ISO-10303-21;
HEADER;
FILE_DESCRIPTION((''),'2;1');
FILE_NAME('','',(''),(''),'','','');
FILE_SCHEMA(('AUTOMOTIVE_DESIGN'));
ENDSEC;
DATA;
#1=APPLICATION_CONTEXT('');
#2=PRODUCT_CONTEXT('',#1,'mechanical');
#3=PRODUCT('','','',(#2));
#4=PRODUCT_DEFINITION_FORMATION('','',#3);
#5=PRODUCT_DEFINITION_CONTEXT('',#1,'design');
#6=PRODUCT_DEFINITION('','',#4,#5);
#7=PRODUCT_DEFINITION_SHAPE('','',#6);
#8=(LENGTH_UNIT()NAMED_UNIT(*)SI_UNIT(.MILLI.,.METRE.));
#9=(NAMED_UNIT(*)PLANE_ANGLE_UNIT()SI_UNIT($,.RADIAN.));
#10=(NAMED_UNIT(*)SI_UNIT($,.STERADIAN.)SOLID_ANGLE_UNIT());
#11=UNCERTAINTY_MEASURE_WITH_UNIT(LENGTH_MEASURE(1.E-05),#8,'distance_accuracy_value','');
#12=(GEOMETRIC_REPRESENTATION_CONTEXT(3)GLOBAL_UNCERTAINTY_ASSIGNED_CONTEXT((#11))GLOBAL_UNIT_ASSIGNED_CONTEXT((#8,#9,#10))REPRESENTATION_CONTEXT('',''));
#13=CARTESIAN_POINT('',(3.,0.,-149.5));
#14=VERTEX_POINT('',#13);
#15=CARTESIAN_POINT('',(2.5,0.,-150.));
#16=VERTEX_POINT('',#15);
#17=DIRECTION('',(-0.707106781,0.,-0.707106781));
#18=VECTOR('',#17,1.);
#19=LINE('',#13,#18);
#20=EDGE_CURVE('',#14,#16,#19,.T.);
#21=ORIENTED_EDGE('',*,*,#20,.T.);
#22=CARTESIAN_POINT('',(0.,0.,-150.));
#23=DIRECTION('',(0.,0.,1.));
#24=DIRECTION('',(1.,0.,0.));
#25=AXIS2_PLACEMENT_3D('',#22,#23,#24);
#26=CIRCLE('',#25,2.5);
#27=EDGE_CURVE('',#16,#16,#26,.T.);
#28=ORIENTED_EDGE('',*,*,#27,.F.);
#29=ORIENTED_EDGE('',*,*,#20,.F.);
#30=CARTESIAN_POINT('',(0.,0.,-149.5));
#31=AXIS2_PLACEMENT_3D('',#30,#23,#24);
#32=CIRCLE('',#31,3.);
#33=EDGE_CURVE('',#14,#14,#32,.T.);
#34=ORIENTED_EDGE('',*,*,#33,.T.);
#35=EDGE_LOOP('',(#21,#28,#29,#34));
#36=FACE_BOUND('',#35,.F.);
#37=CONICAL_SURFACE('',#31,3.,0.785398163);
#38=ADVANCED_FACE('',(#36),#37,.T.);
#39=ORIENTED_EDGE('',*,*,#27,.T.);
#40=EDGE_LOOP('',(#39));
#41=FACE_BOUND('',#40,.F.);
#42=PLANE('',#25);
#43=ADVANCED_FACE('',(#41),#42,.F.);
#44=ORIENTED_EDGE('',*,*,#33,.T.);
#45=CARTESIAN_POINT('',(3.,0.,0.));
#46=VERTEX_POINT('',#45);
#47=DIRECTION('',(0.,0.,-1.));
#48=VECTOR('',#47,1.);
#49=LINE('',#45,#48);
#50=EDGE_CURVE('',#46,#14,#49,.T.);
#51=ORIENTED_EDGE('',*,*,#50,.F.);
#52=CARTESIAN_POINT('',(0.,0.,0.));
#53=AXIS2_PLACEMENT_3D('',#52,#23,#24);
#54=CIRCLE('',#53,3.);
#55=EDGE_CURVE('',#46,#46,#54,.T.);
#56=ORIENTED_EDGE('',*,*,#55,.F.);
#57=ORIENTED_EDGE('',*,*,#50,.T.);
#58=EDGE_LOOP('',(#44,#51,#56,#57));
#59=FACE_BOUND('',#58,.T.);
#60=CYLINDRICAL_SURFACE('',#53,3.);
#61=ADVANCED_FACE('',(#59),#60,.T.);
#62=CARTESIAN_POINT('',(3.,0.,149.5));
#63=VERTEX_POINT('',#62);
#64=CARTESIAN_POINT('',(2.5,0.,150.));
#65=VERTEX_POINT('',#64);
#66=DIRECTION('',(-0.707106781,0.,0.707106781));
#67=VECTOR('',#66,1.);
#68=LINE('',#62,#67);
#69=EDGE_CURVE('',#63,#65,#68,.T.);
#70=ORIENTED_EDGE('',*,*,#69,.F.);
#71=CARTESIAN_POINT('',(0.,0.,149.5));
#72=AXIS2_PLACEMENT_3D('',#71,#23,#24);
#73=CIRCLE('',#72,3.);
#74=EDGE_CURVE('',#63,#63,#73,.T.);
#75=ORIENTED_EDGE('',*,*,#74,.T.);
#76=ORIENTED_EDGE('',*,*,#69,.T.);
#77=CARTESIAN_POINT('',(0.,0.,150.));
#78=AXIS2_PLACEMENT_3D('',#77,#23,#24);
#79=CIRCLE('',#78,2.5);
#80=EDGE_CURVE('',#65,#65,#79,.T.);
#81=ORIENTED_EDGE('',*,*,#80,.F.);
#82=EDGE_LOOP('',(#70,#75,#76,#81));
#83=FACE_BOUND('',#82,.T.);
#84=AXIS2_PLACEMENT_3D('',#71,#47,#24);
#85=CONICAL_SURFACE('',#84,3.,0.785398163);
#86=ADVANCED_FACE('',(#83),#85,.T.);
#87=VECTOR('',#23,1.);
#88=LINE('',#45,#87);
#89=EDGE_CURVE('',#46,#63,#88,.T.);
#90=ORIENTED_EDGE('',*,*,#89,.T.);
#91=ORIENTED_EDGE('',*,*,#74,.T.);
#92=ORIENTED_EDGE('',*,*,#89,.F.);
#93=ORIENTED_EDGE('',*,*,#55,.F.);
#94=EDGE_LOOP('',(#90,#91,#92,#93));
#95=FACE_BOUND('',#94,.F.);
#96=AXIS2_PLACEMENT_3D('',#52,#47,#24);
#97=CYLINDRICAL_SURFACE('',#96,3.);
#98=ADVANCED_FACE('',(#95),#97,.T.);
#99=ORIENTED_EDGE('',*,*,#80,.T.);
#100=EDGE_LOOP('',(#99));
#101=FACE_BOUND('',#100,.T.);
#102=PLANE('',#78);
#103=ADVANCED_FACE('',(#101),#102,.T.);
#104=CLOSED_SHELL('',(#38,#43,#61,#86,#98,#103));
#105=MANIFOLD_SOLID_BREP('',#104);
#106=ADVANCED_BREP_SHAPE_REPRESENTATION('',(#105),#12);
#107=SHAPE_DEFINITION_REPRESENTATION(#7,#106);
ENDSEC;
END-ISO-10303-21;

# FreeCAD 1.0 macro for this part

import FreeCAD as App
import Part
import Sketcher


def edges_at(feature, points):
    """Names of the edges that pass closest to the given points."""
    edges = feature.Shape.Edges
    near = lambda p: min(range(len(edges)), key=lambda i: edges[i].distToShape(Part.Vertex(*p))[0])
    return sorted({f"Edge{near(p) + 1}" for p in points})

doc = App.newDocument("Part")
body = doc.addObject("PartDesign::Body", "Body")

# Sketch on XY plane
sketch1 = body.newObject("Sketcher::SketchObject", "Sketch")
sketch1.AttachmentSupport = (doc.getObject("XY_Plane"), [""])
sketch1.MapMode = "FlatFace"
sketch1.addGeometry(Part.Circle(App.Vector(0, 0, 0), App.Vector(0, 0, 1), 3), False)
sketch1.addConstraint([
    Sketcher.Constraint("Coincident", 0, 3, -1, 1),
    Sketcher.Constraint("Diameter", 0, 6.0),
])
pad1 = body.newObject("PartDesign::Pad", "Pad")
pad1.Profile = sketch1
pad1.Length = 300
pad1.Midplane = True
doc.recompute()

chamfer = body.newObject("PartDesign::Chamfer", "Chamfer")
chamfer.Base = (pad1, edges_at(pad1, [(-3, 0, 150), (-3, 0, -150)]))
chamfer.Size = 0.5

doc.recompute()
